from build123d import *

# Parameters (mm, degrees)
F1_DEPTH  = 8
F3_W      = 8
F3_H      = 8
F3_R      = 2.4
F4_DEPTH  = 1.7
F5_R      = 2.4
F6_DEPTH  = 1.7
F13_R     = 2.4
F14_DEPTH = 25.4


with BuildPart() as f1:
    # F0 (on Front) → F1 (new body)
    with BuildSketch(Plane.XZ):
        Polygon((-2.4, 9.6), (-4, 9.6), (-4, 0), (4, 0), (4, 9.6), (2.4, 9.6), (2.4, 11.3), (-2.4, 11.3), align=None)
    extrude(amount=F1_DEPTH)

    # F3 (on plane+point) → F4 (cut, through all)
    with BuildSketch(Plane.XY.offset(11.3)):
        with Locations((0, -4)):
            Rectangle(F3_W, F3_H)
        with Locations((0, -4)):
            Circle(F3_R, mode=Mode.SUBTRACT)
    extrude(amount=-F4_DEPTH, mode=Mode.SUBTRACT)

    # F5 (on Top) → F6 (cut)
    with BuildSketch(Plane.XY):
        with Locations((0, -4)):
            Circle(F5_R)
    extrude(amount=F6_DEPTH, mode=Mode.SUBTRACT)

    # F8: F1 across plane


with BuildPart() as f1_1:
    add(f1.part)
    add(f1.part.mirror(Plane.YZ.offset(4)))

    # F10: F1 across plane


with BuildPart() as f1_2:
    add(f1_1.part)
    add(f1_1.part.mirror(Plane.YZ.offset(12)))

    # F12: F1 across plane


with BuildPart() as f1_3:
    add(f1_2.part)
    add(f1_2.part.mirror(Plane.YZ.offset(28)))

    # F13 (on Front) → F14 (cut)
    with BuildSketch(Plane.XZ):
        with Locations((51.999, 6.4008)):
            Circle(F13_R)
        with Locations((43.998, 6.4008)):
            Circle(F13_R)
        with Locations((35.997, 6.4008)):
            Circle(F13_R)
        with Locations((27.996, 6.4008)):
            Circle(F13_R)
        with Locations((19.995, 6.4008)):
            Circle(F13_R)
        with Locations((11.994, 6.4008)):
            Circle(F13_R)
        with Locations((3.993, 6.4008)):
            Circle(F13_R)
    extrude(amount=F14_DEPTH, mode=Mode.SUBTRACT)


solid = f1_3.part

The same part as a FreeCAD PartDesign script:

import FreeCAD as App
import Part
import Sketcher
from FreeCAD import Vector
Q = App.Units.Quantity

doc = App.newDocument("Part")
body = doc.addObject("PartDesign::Body", "Body")

# Sketch on XZ plane
sketch1 = body.newObject("Sketcher::SketchObject", "Sketch")
sketch1.AttachmentSupport = (doc.getObject("XZ_Plane"), [""])
sketch1.MapMode = "FlatFace"
sketch1.addGeometry(Part.LineSegment(Vector(-2.4, 9.6, 0), Vector(-4, 9.6, 0)), False)
sketch1.addGeometry(Part.LineSegment(Vector(-4, 9.6, 0), Vector(-4, 0, 0)), False)
sketch1.addGeometry(Part.LineSegment(Vector(-4, 0, 0), Vector(4, 0, 0)), False)
sketch1.addGeometry(Part.LineSegment(Vector(4, 0, 0), Vector(4, 9.6, 0)), False)
sketch1.addGeometry(Part.LineSegment(Vector(4, 9.6, 0), Vector(2.4, 9.6, 0)), False)
sketch1.addGeometry(Part.LineSegment(Vector(2.4, 9.6, 0), Vector(2.4, 11.3, 0)), False)
sketch1.addGeometry(Part.LineSegment(Vector(2.4, 11.3, 0), Vector(-2.4, 11.3, 0)), False)
sketch1.addGeometry(Part.LineSegment(Vector(-2.4, 11.3, 0), Vector(-2.4, 9.6, 0)), False)
sketch1.addConstraint(Sketcher.Constraint("Coincident", 0, 2, 1, 1))
sketch1.addConstraint(Sketcher.Constraint("Coincident", 1, 2, 2, 1))
sketch1.addConstraint(Sketcher.Constraint("Coincident", 2, 2, 3, 1))
sketch1.addConstraint(Sketcher.Constraint("Coincident", 3, 2, 4, 1))
sketch1.addConstraint(Sketcher.Constraint("Coincident", 4, 2, 5, 1))
sketch1.addConstraint(Sketcher.Constraint("Coincident", 5, 2, 6, 1))
sketch1.addConstraint(Sketcher.Constraint("Coincident", 6, 2, 7, 1))
sketch1.addConstraint(Sketcher.Constraint("Coincident", 7, 2, 0, 1))
sketch1.addConstraint(Sketcher.Constraint("Horizontal", 0))
sketch1.addConstraint(Sketcher.Constraint("Vertical", 1))
sketch1.addConstraint(Sketcher.Constraint("Horizontal", 2))
sketch1.addConstraint(Sketcher.Constraint("Vertical", 3))
sketch1.addConstraint(Sketcher.Constraint("Horizontal", 4))
sketch1.addConstraint(Sketcher.Constraint("Vertical", 5))
sketch1.addConstraint(Sketcher.Constraint("Horizontal", 6))
sketch1.addConstraint(Sketcher.Constraint("Vertical", 7))
sketch1.addConstraint(Sketcher.Constraint("Symmetric", 1, 2, 2, 2, -1, 1))
sketch1.addConstraint(Sketcher.Constraint("Symmetric", 4, 2, 7, 2, -2))
sketch1.addConstraint(Sketcher.Constraint("DistanceX", 2, 1, 2, 2, Q("8 mm")))
sketch1.addConstraint(Sketcher.Constraint("DistanceX", 0, 2, 0, 1, Q("1.6 mm")))
sketch1.addConstraint(Sketcher.Constraint("DistanceY", 1, 2, 1, 1, Q("9.6 mm")))
sketch1.addConstraint(Sketcher.Constraint("DistanceY", 5, 1, 5, 2, Q("1.7 mm")))
pad1 = body.newObject("PartDesign::Pad", "Pad")
pad1.Profile = sketch1
pad1.Length = 8

# Sketch on XY plane
sketch2 = body.newObject("Sketcher::SketchObject", "Sketch001")
sketch2.AttachmentSupport = (doc.getObject("XY_Plane"), [""])
sketch2.MapMode = "FlatFace"
sketch2.AttachmentOffset = App.Placement(Vector(0, 0, 11.3), App.Rotation())
sketch2.addGeometry(Part.LineSegment(Vector(-4, 0, 0), Vector(-4, -8, 0)), False)
sketch2.addGeometry(Part.LineSegment(Vector(-4, -8, 0), Vector(4, -8, 0)), False)
sketch2.addGeometry(Part.LineSegment(Vector(4, -8, 0), Vector(4, 0, 0)), False)
sketch2.addGeometry(Part.LineSegment(Vector(4, 0, 0), Vector(-4, 0, 0)), False)
sketch2.addGeometry(Part.Circle(Vector(0, -4, 0), Vector(0, 0, 1), 2.4), False)
sketch2.addConstraint(Sketcher.Constraint("Coincident", 0, 2, 1, 1))
sketch2.addConstraint(Sketcher.Constraint("Coincident", 1, 2, 2, 1))
sketch2.addConstraint(Sketcher.Constraint("Coincident", 2, 2, 3, 1))
sketch2.addConstraint(Sketcher.Constraint("Coincident", 3, 2, 0, 1))
sketch2.addConstraint(Sketcher.Constraint("Vertical", 0))
sketch2.addConstraint(Sketcher.Constraint("Horizontal", 1))
sketch2.addConstraint(Sketcher.Constraint("Vertical", 2))
sketch2.addConstraint(Sketcher.Constraint("Horizontal", 3))
sketch2.addConstraint(Sketcher.Constraint("Symmetric", 2, 2, 3, 2, -1, 1))
sketch2.addConstraint(Sketcher.Constraint("PointOnObject", 4, 3, -2))
sketch2.addConstraint(Sketcher.Constraint("Equal", 3, 0))
sketch2.addConstraint(Sketcher.Constraint("Diameter", 4, Q("4.8 mm")))
sketch2.addConstraint(Sketcher.Constraint("DistanceX", 1, 1, 1, 2, Q("8 mm")))
sketch2.addConstraint(Sketcher.Constraint("DistanceY", 4, 3, -1, 1, Q("4 mm")))
pocket1 = body.newObject("PartDesign::Pocket", "Pocket")
pocket1.Profile = sketch2
pocket1.Length = 1.7

# Sketch on XY plane
sketch3 = body.newObject("Sketcher::SketchObject", "Sketch002")
sketch3.AttachmentSupport = (doc.getObject("XY_Plane"), [""])
sketch3.MapMode = "FlatFace"
sketch3.addGeometry(Part.Circle(Vector(0, -4, 0), Vector(0, 0, 1), 2.4), False)
sketch3.addConstraint(Sketcher.Constraint("PointOnObject", 0, 3, -2))
sketch3.addConstraint(Sketcher.Constraint("Diameter", 0, Q("4.8 mm")))
sketch3.addConstraint(Sketcher.Constraint("DistanceY", 0, 3, -1, 1, Q("4 mm")))
pocket2 = body.newObject("PartDesign::Pocket", "Pocket001")
pocket2.Profile = sketch3
pocket2.Length = 1.7
pocket2.Reversed = True
body2 = doc.addObject("PartDesign::Body", "Body001")
doc.recompute()

body2.BaseFeature = body
doc.recompute()

mirroring = doc.addObject("Part::Mirroring", "Mirroring")
mirroring.Source = body
mirroring.Base = Vector(4, 0, 0)
mirroring.Normal = Vector(1, 0, 0)
body3 = doc.addObject("PartDesign::Body", "Body002")
body3.BaseFeature = mirroring
boolean = body2.newObject("PartDesign::Boolean", "Boolean")
boolean.Type = "Fuse"
boolean.addObjects([body3])
doc.recompute()
body4 = doc.addObject("PartDesign::Body", "Body003")
doc.recompute()

body4.BaseFeature = body2
doc.recompute()

mirroring2 = doc.addObject("Part::Mirroring", "Mirroring001")
mirroring2.Source = body2
mirroring2.Base = Vector(12, 0, 0)
mirroring2.Normal = Vector(1, 0, 0)
body5 = doc.addObject("PartDesign::Body", "Body004")
body5.BaseFeature = mirroring2
boolean2 = body4.newObject("PartDesign::Boolean", "Boolean001")
boolean2.Type = "Fuse"
boolean2.addObjects([body5])
doc.recompute()
body6 = doc.addObject("PartDesign::Body", "Body005")
doc.recompute()

body6.BaseFeature = body4
doc.recompute()

mirroring3 = doc.addObject("Part::Mirroring", "Mirroring002")
mirroring3.Source = body4
mirroring3.Base = Vector(28, 0, 0)
mirroring3.Normal = Vector(1, 0, 0)
body7 = doc.addObject("PartDesign::Body", "Body006")
body7.BaseFeature = mirroring3
boolean3 = body6.newObject("PartDesign::Boolean", "Boolean002")
boolean3.Type = "Fuse"
boolean3.addObjects([body7])
doc.recompute()

# Sketch on XZ plane
sketch4 = body6.newObject("Sketcher::SketchObject", "Sketch003")
sketch4.AttachmentSupport = (doc.getObject("XZ_Plane005"), [""])
sketch4.MapMode = "FlatFace"
sketch4.addGeometry(Part.Circle(Vector(52, 6.4, 0), Vector(0, 0, 1), 2.4), False)
sketch4.addGeometry(Part.Circle(Vector(44, 6.4, 0), Vector(0, 0, 1), 2.4), False)
sketch4.addGeometry(Part.Circle(Vector(36, 6.4, 0), Vector(0, 0, 1), 2.4), False)
sketch4.addGeometry(Part.Circle(Vector(28, 6.4, 0), Vector(0, 0, 1), 2.4), False)
sketch4.addGeometry(Part.Circle(Vector(20, 6.4, 0), Vector(0, 0, 1), 2.4), False)
sketch4.addGeometry(Part.Circle(Vector(12, 6.4, 0), Vector(0, 0, 1), 2.4), False)
sketch4.addGeometry(Part.Circle(Vector(4, 6.4, 0), Vector(0, 0, 1), 2.4), False)
sketch4.addConstraint(Sketcher.Constraint("Equal", 0, 1))
sketch4.addConstraint(Sketcher.Constraint("Equal", 1, 2))
sketch4.addConstraint(Sketcher.Constraint("Equal", 2, 3))
sketch4.addConstraint(Sketcher.Constraint("Equal", 3, 4))
sketch4.addConstraint(Sketcher.Constraint("Equal", 4, 5))
sketch4.addConstraint(Sketcher.Constraint("Equal", 5, 6))
sketch4.addConstraint(Sketcher.Constraint("Horizontal", 0, 3, 1, 3))
sketch4.addConstraint(Sketcher.Constraint("Horizontal", 1, 3, 2, 3))
sketch4.addConstraint(Sketcher.Constraint("Horizontal", 2, 3, 3, 3))
sketch4.addConstraint(Sketcher.Constraint("Horizontal", 3, 3, 4, 3))
sketch4.addConstraint(Sketcher.Constraint("Horizontal", 4, 3, 5, 3))
sketch4.addConstraint(Sketcher.Constraint("Horizontal", 5, 3, 6, 3))
sketch4.addConstraint(Sketcher.Constraint("Diameter", 0, Q("4.8 mm")))
sketch4.addConstraint(Sketcher.Constraint("DistanceX", -1, 1, 0, 3, Q("51.999 mm")))
sketch4.addConstraint(Sketcher.Constraint("DistanceX", -1, 1, 1, 3, Q("43.998 mm")))
sketch4.addConstraint(Sketcher.Constraint("DistanceX", -1, 1, 2, 3, Q("35.997 mm")))
sketch4.addConstraint(Sketcher.Constraint("DistanceX", -1, 1, 3, 3, Q("27.996 mm")))
sketch4.addConstraint(Sketcher.Constraint("DistanceX", -1, 1, 4, 3, Q("19.995 mm")))
sketch4.addConstraint(Sketcher.Constraint("DistanceX", -1, 1, 5, 3, Q("11.994 mm")))
sketch4.addConstraint(Sketcher.Constraint("DistanceX", -1, 1, 6, 3, Q("3.993 mm")))
sketch4.addConstraint(Sketcher.Constraint("DistanceY", -1, 1, 0, 3, Q("6.4008 mm")))
pocket3 = body6.newObject("PartDesign::Pocket", "Pocket002")
pocket3.Profile = sketch4
pocket3.Length = 25.4
pocket3.Reversed = True
mirroring.Visibility = False
mirroring2.Visibility = False
mirroring3.Visibility = False

doc.recompute()
